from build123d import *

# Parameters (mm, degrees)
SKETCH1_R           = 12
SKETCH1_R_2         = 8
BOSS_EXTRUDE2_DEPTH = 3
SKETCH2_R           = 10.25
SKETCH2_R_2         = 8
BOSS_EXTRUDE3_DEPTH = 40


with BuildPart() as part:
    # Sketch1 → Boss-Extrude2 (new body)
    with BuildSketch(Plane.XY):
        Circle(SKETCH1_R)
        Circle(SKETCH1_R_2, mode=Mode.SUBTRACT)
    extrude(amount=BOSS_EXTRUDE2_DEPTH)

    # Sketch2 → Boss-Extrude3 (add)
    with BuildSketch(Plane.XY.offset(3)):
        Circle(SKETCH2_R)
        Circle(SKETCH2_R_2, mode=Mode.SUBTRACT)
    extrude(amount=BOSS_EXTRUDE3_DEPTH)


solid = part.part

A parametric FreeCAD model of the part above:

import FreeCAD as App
import Part
import Sketcher

doc = App.newDocument("Part")
body = doc.addObject("PartDesign::Body", "Body")

sketch1 = doc.addObject("Sketcher::SketchObject", "Sketch")
body.addObject(sketch1)
sketch1.AttachmentSupport = (doc.XY_Plane, [""])
sketch1.MapMode = "FlatFace"
sketch1.addGeometry([
    Part.Circle(App.Vector(0, 0, 0), App.Vector(0, 0, 1), 12),
    Part.Circle(App.Vector(0, 0, 0), App.Vector(0, 0, 1), 8),
], False)
sketch1.addConstraint([
    Sketcher.Constraint("Coincident", 0, 3, -1, 1),
    Sketcher.Constraint("Coincident", 1, 3, -1, 1),
    Sketcher.Constraint("Diameter", 0, 24.0),
    Sketcher.Constraint("Diameter", 1, 16.0),
])
pad1 = doc.addObject("PartDesign::Pad", "Pad")
body.addObject(pad1)
pad1.Profile = sketch1
pad1.Length = 3

sketch2 = doc.addObject("Sketcher::SketchObject", "Sketch001")
body.addObject(sketch2)
sketch2.AttachmentSupport = (doc.XY_Plane, [""])
sketch2.MapMode = "FlatFace"
sketch2.AttachmentOffset = App.Placement(App.Vector(0, 0, 3), App.Rotation())
sketch2.addGeometry([
    Part.Circle(App.Vector(0, 0, 0), App.Vector(0, 0, 1), 10),
    Part.Circle(App.Vector(0, 0, 0), App.Vector(0, 0, 1), 8),
], False)
sketch2.addConstraint([
    Sketcher.Constraint("Coincident", 0, 3, -1, 1),
    Sketcher.Constraint("Coincident", 1, 3, -1, 1),
    Sketcher.Constraint("Diameter", 1, 16.0),
    Sketcher.Constraint("Diameter", 0, 20.5),
])
pad2 = doc.addObject("PartDesign::Pad", "Pad001")
body.addObject(pad2)
pad2.Profile = sketch2
pad2.Length = 40

doc.recompute()
